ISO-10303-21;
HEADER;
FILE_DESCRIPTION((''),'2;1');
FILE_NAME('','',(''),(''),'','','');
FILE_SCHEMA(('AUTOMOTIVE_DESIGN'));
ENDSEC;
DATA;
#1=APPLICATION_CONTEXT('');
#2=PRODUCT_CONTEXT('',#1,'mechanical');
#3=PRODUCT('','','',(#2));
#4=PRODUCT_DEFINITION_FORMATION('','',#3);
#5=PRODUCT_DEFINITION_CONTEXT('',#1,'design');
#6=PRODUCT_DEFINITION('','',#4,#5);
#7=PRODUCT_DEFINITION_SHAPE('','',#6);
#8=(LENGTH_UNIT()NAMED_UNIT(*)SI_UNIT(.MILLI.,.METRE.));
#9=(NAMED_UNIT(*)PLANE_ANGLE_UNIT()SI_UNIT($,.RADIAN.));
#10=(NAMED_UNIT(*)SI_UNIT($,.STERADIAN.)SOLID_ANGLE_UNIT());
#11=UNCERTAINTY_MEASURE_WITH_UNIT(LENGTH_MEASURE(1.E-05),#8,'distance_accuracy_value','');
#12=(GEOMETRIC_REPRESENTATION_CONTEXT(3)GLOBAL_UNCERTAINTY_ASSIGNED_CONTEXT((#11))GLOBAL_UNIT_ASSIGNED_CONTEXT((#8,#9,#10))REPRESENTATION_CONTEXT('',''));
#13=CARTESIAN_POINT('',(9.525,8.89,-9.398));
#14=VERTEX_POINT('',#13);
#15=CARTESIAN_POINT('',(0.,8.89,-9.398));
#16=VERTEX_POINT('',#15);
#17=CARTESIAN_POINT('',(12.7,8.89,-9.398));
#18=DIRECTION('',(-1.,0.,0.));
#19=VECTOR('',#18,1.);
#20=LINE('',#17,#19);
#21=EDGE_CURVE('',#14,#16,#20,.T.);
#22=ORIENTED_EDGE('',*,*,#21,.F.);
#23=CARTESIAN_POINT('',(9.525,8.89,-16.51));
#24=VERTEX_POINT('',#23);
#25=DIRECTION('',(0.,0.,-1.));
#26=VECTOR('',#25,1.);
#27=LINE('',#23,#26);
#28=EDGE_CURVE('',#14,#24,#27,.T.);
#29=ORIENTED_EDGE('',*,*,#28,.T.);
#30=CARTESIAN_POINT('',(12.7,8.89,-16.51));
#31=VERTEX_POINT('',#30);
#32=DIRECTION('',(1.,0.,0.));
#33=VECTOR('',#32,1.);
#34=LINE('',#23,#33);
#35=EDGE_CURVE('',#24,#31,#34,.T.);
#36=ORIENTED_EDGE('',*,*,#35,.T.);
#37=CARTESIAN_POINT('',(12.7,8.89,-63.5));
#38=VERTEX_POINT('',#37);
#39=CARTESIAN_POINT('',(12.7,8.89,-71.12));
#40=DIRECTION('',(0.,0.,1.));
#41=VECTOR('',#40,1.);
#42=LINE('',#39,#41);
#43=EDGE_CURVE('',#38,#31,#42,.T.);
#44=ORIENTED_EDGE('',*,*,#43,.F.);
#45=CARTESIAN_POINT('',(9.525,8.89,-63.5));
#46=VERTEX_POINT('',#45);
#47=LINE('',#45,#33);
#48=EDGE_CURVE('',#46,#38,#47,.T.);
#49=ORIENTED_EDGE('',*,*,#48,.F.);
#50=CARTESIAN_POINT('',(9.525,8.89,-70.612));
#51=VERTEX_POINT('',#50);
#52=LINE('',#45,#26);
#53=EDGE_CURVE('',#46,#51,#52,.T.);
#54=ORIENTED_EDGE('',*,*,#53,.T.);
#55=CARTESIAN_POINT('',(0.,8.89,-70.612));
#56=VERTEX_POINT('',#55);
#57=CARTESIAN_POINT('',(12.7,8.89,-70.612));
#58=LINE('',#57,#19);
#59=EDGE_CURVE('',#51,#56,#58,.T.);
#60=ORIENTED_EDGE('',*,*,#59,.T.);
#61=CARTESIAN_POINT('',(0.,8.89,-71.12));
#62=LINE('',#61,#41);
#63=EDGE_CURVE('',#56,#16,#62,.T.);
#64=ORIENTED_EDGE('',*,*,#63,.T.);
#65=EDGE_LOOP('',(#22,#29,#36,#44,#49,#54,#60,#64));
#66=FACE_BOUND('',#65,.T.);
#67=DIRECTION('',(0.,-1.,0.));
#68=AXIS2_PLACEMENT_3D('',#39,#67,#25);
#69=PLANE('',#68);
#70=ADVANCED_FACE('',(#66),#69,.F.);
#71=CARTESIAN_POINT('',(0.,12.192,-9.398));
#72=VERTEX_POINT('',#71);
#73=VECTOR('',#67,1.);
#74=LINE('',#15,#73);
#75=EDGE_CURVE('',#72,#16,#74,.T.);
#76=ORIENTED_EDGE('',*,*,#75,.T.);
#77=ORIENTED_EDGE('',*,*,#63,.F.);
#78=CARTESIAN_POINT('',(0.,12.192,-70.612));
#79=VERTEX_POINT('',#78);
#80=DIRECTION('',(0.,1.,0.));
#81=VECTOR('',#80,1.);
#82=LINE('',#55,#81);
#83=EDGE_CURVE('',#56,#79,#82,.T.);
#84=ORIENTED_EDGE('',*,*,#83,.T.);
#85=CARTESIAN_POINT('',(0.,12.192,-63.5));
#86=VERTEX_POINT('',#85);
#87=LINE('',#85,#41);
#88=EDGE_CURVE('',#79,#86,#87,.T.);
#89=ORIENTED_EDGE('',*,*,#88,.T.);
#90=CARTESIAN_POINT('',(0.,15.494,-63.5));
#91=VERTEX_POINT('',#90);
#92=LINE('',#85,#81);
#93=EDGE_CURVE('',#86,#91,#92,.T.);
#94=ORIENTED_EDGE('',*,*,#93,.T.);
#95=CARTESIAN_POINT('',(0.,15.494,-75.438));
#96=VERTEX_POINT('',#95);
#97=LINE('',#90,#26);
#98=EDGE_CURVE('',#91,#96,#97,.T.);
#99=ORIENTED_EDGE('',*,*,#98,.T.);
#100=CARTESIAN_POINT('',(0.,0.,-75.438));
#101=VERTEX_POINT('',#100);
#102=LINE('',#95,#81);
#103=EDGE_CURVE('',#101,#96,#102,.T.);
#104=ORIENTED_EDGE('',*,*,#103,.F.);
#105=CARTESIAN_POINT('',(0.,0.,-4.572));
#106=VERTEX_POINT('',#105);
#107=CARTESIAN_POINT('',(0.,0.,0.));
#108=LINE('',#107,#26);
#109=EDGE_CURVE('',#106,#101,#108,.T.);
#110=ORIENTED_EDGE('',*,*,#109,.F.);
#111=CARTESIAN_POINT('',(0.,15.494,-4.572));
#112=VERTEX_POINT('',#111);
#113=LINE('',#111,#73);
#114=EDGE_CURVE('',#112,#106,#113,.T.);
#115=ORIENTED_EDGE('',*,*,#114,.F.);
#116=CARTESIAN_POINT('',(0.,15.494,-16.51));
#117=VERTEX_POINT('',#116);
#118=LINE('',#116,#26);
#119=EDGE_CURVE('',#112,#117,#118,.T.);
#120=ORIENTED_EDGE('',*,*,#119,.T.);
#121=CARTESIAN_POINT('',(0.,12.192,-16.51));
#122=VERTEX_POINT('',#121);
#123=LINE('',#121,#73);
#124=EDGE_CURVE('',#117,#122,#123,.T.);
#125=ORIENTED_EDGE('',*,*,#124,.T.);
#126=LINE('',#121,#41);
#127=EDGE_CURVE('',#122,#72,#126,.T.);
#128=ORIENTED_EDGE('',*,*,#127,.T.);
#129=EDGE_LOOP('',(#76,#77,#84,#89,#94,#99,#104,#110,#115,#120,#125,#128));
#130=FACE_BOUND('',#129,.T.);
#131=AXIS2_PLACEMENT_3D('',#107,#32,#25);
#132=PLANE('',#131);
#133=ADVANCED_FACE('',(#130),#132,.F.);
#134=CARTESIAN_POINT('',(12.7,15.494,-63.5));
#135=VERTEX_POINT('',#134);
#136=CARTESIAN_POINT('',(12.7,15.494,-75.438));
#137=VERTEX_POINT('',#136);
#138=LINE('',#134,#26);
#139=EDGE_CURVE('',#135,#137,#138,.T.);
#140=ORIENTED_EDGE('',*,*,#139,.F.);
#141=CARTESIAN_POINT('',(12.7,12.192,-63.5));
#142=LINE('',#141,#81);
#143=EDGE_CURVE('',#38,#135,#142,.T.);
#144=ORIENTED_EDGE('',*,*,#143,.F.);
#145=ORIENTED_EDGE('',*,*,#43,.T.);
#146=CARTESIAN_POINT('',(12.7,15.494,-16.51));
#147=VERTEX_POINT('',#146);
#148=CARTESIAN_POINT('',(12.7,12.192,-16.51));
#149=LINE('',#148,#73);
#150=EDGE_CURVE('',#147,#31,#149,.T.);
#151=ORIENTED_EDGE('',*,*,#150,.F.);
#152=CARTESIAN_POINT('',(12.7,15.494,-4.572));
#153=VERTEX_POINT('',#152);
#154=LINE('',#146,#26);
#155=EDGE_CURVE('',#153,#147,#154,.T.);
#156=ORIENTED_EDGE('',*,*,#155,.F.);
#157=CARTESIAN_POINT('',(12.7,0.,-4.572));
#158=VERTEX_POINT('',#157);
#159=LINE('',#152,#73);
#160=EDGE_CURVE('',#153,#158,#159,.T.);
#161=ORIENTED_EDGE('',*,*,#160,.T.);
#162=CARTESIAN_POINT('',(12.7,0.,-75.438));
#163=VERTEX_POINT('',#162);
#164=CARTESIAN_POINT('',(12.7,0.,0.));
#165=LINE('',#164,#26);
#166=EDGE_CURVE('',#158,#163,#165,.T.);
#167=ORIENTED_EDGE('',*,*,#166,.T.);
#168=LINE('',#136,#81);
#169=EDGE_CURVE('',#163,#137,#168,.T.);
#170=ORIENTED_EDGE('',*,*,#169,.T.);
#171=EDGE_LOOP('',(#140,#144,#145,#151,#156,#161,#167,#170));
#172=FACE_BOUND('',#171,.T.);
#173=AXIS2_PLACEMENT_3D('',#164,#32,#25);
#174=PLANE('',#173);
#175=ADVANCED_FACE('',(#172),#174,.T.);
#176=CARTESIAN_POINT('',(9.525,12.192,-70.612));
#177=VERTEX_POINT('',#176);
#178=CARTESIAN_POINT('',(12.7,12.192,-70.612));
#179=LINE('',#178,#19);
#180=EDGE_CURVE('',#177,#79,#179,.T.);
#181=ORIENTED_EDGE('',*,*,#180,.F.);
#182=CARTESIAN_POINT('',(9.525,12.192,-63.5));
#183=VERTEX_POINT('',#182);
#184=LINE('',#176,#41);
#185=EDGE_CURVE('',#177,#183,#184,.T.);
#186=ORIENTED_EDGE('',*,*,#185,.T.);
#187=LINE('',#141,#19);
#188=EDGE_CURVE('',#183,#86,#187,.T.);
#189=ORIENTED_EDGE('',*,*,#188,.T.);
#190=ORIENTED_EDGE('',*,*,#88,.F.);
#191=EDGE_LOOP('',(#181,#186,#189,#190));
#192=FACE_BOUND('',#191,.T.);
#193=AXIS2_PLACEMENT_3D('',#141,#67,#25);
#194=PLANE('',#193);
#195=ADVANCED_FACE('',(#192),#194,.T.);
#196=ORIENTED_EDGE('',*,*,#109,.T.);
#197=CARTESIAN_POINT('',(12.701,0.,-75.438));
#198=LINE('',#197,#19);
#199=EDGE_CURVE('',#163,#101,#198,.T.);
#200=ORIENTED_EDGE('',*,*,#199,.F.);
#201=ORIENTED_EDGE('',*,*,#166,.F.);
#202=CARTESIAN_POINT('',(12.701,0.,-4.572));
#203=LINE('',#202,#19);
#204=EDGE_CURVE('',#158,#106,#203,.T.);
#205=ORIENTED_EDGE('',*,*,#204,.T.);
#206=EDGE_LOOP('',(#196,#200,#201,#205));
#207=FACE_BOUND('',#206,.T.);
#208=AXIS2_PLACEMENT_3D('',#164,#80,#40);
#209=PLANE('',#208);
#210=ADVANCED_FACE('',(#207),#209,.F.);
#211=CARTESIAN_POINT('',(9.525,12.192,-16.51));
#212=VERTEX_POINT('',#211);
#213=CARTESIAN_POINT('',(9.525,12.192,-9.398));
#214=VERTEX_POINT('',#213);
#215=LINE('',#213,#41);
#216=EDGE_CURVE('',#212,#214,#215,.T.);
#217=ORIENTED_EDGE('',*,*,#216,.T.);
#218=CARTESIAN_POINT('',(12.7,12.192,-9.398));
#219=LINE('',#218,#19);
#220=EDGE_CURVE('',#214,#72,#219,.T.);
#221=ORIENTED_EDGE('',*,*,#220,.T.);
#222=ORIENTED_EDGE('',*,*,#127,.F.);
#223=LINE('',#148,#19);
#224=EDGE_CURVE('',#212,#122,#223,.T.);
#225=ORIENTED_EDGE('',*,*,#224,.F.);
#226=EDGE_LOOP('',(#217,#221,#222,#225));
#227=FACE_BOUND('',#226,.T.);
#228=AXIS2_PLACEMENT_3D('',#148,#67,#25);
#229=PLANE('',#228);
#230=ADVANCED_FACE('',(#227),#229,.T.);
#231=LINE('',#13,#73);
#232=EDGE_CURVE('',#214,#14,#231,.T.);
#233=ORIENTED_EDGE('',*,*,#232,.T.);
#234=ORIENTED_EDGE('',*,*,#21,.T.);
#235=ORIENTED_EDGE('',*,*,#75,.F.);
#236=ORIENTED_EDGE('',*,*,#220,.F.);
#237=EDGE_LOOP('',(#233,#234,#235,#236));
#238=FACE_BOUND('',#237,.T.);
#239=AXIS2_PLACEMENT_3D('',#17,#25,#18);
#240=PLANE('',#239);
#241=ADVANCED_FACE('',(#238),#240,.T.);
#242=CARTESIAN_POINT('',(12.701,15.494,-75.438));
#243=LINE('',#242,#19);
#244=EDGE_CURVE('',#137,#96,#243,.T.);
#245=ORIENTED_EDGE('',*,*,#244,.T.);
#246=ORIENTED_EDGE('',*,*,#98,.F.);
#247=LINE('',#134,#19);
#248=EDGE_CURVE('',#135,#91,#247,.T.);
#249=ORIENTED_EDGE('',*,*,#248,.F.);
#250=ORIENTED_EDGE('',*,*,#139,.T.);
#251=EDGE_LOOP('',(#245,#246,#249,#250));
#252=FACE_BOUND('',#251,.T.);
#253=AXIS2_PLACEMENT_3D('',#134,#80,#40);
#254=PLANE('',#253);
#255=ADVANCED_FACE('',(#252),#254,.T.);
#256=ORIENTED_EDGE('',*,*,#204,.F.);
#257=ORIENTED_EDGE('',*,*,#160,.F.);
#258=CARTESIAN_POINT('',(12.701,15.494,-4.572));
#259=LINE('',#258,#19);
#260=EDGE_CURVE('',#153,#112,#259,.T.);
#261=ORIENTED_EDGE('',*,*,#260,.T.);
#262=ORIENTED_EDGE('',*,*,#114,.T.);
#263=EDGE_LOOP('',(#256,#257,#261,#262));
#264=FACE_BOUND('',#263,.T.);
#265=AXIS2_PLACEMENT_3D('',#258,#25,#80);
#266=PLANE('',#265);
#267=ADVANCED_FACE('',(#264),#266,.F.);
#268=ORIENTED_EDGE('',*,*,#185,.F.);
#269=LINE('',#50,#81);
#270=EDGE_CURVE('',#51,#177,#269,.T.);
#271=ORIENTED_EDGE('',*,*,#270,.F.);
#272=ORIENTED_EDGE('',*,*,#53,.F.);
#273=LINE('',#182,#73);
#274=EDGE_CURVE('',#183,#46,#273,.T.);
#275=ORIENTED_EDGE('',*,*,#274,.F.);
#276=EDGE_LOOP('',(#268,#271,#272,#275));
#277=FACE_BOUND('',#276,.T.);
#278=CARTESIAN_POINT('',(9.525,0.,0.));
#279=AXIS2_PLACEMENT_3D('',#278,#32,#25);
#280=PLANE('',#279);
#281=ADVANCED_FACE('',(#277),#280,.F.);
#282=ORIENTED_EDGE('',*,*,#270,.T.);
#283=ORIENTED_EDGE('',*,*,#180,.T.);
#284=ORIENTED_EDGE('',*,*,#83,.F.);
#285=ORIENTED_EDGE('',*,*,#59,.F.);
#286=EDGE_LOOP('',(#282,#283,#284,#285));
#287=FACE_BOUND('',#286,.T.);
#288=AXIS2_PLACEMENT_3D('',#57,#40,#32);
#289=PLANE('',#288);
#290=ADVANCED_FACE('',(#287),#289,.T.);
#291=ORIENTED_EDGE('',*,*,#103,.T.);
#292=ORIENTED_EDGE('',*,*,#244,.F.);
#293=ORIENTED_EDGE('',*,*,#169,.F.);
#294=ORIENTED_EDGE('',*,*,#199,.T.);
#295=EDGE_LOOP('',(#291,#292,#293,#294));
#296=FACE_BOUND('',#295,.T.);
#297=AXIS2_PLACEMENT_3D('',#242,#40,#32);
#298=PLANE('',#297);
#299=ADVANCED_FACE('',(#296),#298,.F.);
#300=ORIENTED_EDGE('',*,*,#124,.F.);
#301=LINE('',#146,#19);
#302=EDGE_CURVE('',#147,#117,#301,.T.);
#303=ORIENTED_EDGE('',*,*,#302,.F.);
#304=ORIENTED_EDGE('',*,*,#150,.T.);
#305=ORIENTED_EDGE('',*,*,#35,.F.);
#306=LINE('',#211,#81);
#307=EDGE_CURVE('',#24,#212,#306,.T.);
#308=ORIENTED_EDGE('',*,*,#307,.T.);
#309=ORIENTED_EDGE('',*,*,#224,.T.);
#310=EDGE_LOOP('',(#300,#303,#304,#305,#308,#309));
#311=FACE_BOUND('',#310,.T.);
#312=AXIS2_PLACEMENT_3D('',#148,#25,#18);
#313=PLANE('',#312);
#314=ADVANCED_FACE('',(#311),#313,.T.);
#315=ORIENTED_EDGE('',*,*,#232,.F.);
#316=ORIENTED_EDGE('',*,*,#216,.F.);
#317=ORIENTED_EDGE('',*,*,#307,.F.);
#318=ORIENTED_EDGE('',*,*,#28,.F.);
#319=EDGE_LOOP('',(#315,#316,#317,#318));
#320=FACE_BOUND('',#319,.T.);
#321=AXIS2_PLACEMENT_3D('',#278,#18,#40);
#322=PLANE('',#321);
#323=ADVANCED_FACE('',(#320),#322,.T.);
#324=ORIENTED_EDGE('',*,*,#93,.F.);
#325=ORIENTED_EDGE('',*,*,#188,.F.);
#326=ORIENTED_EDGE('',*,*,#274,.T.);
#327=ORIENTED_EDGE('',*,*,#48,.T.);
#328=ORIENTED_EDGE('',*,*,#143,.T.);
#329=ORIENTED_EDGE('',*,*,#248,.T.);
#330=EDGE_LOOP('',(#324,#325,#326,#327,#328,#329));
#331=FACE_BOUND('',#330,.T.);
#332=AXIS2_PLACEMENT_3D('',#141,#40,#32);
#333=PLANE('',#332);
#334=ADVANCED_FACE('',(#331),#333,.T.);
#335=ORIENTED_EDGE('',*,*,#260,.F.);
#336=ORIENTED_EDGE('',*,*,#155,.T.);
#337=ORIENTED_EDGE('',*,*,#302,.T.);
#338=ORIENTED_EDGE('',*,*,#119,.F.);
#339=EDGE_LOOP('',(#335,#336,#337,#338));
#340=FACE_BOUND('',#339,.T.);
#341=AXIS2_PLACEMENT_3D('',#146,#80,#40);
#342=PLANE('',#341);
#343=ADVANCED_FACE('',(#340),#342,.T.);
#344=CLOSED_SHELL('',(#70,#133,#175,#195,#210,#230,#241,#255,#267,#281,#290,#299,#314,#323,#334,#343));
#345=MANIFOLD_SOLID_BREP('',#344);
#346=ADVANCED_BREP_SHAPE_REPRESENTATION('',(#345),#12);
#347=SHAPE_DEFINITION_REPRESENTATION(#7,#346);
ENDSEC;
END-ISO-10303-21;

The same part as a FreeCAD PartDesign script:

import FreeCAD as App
import Part
import Sketcher
from FreeCAD import Vector
Q = App.Units.Quantity


def add_polygon(sketch, points):
    """Adds a closed chain of lines whose ends are joined by coincident constraints."""
    first, n = sketch.GeometryCount, len(points)
    for a, b in zip(points, points[1:] + points[:1]):
        sketch.addGeometry(Part.LineSegment(App.Vector(*a, 0), App.Vector(*b, 0)), False)
    for i in range(n):
        sketch.addConstraint(Sketcher.Constraint("Coincident", first + i, 2, first + (i + 1) % n, 1))

doc = App.newDocument("Part")
body = doc.addObject("PartDesign::Body", "Body")

sketch1 = body.newObject("Sketcher::SketchObject", "Sketch")
sketch1.AttachmentSupport = (doc.getObject("YZ_Plane"), [""])
sketch1.MapMode = "FlatFace"
add_polygon(sketch1, [(0, 0), (0, -80.01), (19.05, -80.01), (19.05, -71.12), (8.89, -71.12), (8.89, -8.89), (19.05, -8.89), (19.05, 0)])
sketch1.addConstraint([
    Sketcher.Constraint("Vertical", 0),
    Sketcher.Constraint("Horizontal", 1),
    Sketcher.Constraint("Vertical", 2),
    Sketcher.Constraint("Horizontal", 3),
    Sketcher.Constraint("Vertical", 4),
    Sketcher.Constraint("Horizontal", 5),
    Sketcher.Constraint("Vertical", 6),
    Sketcher.Constraint("Horizontal", 7),
    Sketcher.Constraint("Coincident", 7, 2, -1, 1),
    Sketcher.Constraint("Vertical", 2, 2, 5, 2),
    Sketcher.Constraint("Equal", 2, 6),
    Sketcher.Constraint("DistanceX", 3, 2, 3, 1, Q("0.4 in")),
    Sketcher.Constraint("DistanceX", 1, 1, 1, 2, Q("0.75 in")),
    Sketcher.Constraint("DistanceY", 0, 2, 0, 1, Q("3.15 in")),
    Sketcher.Constraint("DistanceY", 2, 1, 2, 2, Q("0.35 in")),
])
pad1 = body.newObject("PartDesign::Pad", "Pad")
pad1.Profile = sketch1
pad1.Length = Q("0.5 in")

sketch2 = body.newObject("Sketcher::SketchObject", "Sketch001")
sketch2.AttachmentSupport = (doc.getObject("YZ_Plane"), [""])
sketch2.MapMode = "FlatFace"
add_polygon(sketch2, [(12.192, -70.612), (12.192, -63.5), (15.494, -63.5), (15.494, -74.93), (8.89, -74.93), (8.89, -70.612)])
add_polygon(sketch2, [(12.192, -16.51), (12.192, -9.398), (8.89, -9.398), (8.89, -5.08), (15.494, -5.08), (15.494, -16.51)])
sketch2.addConstraint([
    Sketcher.Constraint("Vertical", 0),
    Sketcher.Constraint("Horizontal", 1),
    Sketcher.Constraint("Vertical", 2),
    Sketcher.Constraint("Horizontal", 3),
    Sketcher.Constraint("Vertical", 4),
    Sketcher.Constraint("Horizontal", 5),
    Sketcher.Constraint("Vertical", 6),
    Sketcher.Constraint("Horizontal", 7),
    Sketcher.Constraint("Vertical", 8),
    Sketcher.Constraint("Horizontal", 9),
    Sketcher.Constraint("Vertical", 10),
    Sketcher.Constraint("Horizontal", 11),
    Sketcher.Constraint("Vertical", 5, 2, 6, 2),
    Sketcher.Constraint("Vertical", 4, 2, 7, 2),
    Sketcher.Constraint("Vertical", 2, 2, 9, 2),
    Sketcher.Constraint("Equal", 1, 5),
    Sketcher.Constraint("Equal", 0, 6),
    Sketcher.Constraint("Equal", 4, 8),
    Sketcher.Constraint("DistanceX", 1, 1, 1, 2, Q("0.13 in")),
    Sketcher.Constraint("DistanceY", 0, 1, 0, 2, Q("0.28 in")),
    Sketcher.Constraint("DistanceY", 2, 2, 2, 1, Q("0.45 in")),
    Sketcher.Constraint("DistanceY", 0, 2, -1, 1, Q("2.5 in")),
    Sketcher.Constraint("DistanceY", 8, 2, -1, 1, Q("0.2 in")),
    Sketcher.Constraint("DistanceX", -1, 1, 0, 2, Q("0.48 in")),
])
pad2 = body.newObject("PartDesign::Pad", "Pad001")
pad2.Profile = sketch2
pad2.Length = Q("0.5 in")

sketch3 = body.newObject("Sketcher::SketchObject", "Sketch002")
sketch3.AttachmentSupport = (doc.getObject("YZ_Plane"), [""])
sketch3.MapMode = "FlatFace"
add_polygon(sketch3, [(15.494, -75.438), (15.494, -71.12), (19.05, -71.12), (19.05, -80.01), (0, -80.01), (0, -75.438)])
sketch3.addConstraint([
    Sketcher.Constraint("Vertical", 0),
    Sketcher.Constraint("Horizontal", 1),
    Sketcher.Constraint("Vertical", 2),
    Sketcher.Constraint("Horizontal", 3),
    Sketcher.Constraint("Vertical", 4),
    Sketcher.Constraint("Horizontal", 5),
    Sketcher.Constraint("PointOnObject", 3, 2, -2),
    Sketcher.Constraint("DistanceX", 1, 1, 1, 2, Q("0.14 in")),
    Sketcher.Constraint("DistanceX", 3, 2, 3, 1, Q("0.75 in")),
    Sketcher.Constraint("DistanceY", 0, 1, 0, 2, Q("0.17 in")),
    Sketcher.Constraint("DistanceY", 2, 2, 2, 1, Q("0.35 in")),
    Sketcher.Constraint("DistanceY", 0, 2, -1, 1, Q("2.8 in")),
])
pocket1 = body.newObject("PartDesign::Pocket", "Pocket")
pocket1.Profile = sketch3
pocket1.Type = "UpToFirst"
pocket1.Reversed = True

sketch4 = body.newObject("Sketcher::SketchObject", "Sketch003")
sketch4.AttachmentSupport = (doc.getObject("YZ_Plane"), [""])
sketch4.MapMode = "FlatFace"
add_polygon(sketch4, [(15.494, -8.89), (15.494, -4.572), (0, -4.572), (0, 0), (19.05, 0), (19.05, -8.89)])
sketch4.addConstraint([
    Sketcher.Constraint("Vertical", 0),
    Sketcher.Constraint("Horizontal", 1),
    Sketcher.Constraint("Vertical", 2),
    Sketcher.Constraint("Horizontal", 3),
    Sketcher.Constraint("Vertical", 4),
    Sketcher.Constraint("Horizontal", 5),
    Sketcher.Constraint("Coincident", 2, 2, -1, 1),
    Sketcher.Constraint("DistanceX", 1, 2, 1, 1, Q("0.61 in")),
    Sketcher.Constraint("DistanceX", 3, 1, 3, 2, Q("0.75 in")),
    Sketcher.Constraint("DistanceY", 0, 1, 0, 2, Q("0.17 in")),
    Sketcher.Constraint("DistanceY", 2, 1, 2, 2, Q("0.18 in")),
])
pocket2 = body.newObject("PartDesign::Pocket", "Pocket001")
pocket2.Profile = sketch4
pocket2.Type = "UpToFirst"
pocket2.Reversed = True

sketch5 = body.newObject("Sketcher::SketchObject", "Sketch004")
sketch5.AttachmentSupport = (doc.getObject("YZ_Plane"), [""])
sketch5.MapMode = "FlatFace"
sketch5.AttachmentOffset = App.Placement(Vector(0, 0, 0.5 * 25.4), App.Rotation())
add_polygon(sketch5, [(12.192, -9.398), (8.89, -9.398), (8.89, -16.51), (12.192, -16.51)])
sketch5.addConstraint([
    Sketcher.Constraint("Horizontal", 0),
    Sketcher.Constraint("Vertical", 1),
    Sketcher.Constraint("Horizontal", 2),
    Sketcher.Constraint("Vertical", 3),
    Sketcher.Constraint("DistanceX", 0, 2, 0, 1, Q("0.13 in")),
    Sketcher.Constraint("DistanceY", 1, 2, 1, 1, Q("0.28 in")),
    Sketcher.Constraint("DistanceX", -1, 1, 0, 2, Q("0.35 in")),
    Sketcher.Constraint("DistanceY", 0, 2, -1, 1, Q("0.37 in")),
])
pad3 = body.newObject("PartDesign::Pad", "Pad002")
pad3.Profile = sketch5
pad3.Length = Q("0.125 in")
pad3.Reversed = True

sketch6 = body.newObject("Sketcher::SketchObject", "Sketch005")
sketch6.AttachmentSupport = (doc.getObject("YZ_Plane"), [""])
sketch6.MapMode = "FlatFace"
sketch6.AttachmentOffset = App.Placement(Vector(0, 0, 0.5 * 25.4), App.Rotation())
add_polygon(sketch6, [(12.192, -63.5), (8.89, -63.5), (8.89, -70.612), (12.192, -70.612)])
sketch6.addConstraint([
    Sketcher.Constraint("Horizontal", 0),
    Sketcher.Constraint("Vertical", 1),
    Sketcher.Constraint("Horizontal", 2),
    Sketcher.Constraint("Vertical", 3),
    Sketcher.Constraint("DistanceX", 0, 2, 0, 1, Q("0.13 in")),
    Sketcher.Constraint("DistanceY", 1, 2, 1, 1, Q("0.28 in")),
    Sketcher.Constraint("DistanceY", 0, 2, -1, 1, Q("2.5 in")),
    Sketcher.Constraint("DistanceX", -1, 1, 0, 2, Q("0.35 in")),
])
pad4 = body.newObject("PartDesign::Pad", "Pad003")
pad4.Profile = sketch6
pad4.Length = Q("0.125 in")
pad4.Reversed = True

doc.recompute()
